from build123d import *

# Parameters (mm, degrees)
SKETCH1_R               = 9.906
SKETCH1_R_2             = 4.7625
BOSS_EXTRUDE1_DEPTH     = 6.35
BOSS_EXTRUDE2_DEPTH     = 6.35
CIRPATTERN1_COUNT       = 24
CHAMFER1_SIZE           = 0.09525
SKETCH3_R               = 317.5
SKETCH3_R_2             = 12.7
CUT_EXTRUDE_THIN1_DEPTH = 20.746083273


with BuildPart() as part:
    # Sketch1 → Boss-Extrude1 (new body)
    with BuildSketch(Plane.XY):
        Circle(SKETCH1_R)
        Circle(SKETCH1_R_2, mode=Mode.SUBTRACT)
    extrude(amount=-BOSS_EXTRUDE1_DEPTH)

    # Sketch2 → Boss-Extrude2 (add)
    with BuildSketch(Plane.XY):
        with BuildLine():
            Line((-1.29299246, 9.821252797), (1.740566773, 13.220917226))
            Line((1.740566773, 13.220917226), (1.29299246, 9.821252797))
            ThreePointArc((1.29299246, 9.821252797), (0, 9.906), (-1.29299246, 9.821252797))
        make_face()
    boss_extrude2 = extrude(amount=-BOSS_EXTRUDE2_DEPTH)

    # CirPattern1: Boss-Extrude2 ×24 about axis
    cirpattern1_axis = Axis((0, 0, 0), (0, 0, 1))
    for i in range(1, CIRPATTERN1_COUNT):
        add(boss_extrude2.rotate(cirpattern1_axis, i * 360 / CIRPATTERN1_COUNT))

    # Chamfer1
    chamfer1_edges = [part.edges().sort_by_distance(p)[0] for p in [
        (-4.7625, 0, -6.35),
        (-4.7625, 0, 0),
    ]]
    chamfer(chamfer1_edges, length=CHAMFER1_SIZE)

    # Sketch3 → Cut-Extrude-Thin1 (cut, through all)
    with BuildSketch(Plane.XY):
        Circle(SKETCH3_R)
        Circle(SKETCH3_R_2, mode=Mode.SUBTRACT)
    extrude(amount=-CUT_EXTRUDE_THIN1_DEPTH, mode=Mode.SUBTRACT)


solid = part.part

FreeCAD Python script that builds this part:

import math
import FreeCAD as App
import Part
import Sketcher
from FreeCAD import Vector
Q = App.Units.Quantity


def edges_at(feature, points):
    """Names of the edges that pass closest to the given points."""
    edges = feature.Shape.Edges
    near = lambda p: min(range(len(edges)), key=lambda i: edges[i].distToShape(Part.Vertex(*p))[0])
    return sorted({f"Edge{near(p) + 1}" for p in points})

doc = App.newDocument("Part")
body = doc.addObject("PartDesign::Body", "Body")

sketch1 = doc.addObject("Sketcher::SketchObject", "Sketch")
body.addObject(sketch1)
sketch1.AttachmentSupport = (doc.XY_Plane, [""])
sketch1.MapMode = "FlatFace"
sketch1.addGeometry([
    Part.Circle(Vector(0, 0, 0), Vector(0, 0, 1), 9.9),
    Part.Circle(Vector(0, 0, 0), Vector(0, 0, 1), 4.8),
], False)
sketch1.addConstraint([
    Sketcher.Constraint("Coincident", 0, 3, -1, 1),
    Sketcher.Constraint("Coincident", 1, 3, -1, 1),
    Sketcher.Constraint("Diameter", 0, Q("0.78 in")),
    Sketcher.Constraint("Diameter", 1, Q("0.375 in")),
])
pad1 = doc.addObject("PartDesign::Pad", "Pad")
body.addObject(pad1)
pad1.Profile = sketch1
pad1.Length = Q("0.25 in")
pad1.Reversed = True

sketch2 = doc.addObject("Sketcher::SketchObject", "Sketch001")
body.addObject(sketch2)
sketch2.AttachmentSupport = (doc.XY_Plane, [""])
sketch2.MapMode = "FlatFace"
sketch2.addGeometry([
    Part.LineSegment(Vector(1.7, 13.2, 0), Vector(-1.3, 9.8, 0)),
    Part.ArcOfCircle(Part.Circle(Vector(0, 0, 0), Vector(0, 0, 1), 9.9), math.radians(82.5), math.radians(97.5)),
    Part.LineSegment(Vector(1.3, 9.8, 0), Vector(1.7, 13.2, 0)),
], False)
sketch2.addConstraint([
    Sketcher.Constraint("Coincident", 0, 2, 1, 2),
    Sketcher.Constraint("Coincident", 1, 1, 2, 1),
    Sketcher.Constraint("Coincident", 2, 2, 0, 1),
    Sketcher.Constraint("Coincident", 1, 3, -1, 1),
    Sketcher.Constraint("Horizontal", 0, 2, 1, 1),
    Sketcher.Constraint("Radius", 1, Q("0.39 in")),
    Sketcher.Constraint("Angle", 2, Q("82.5 deg")),
    Sketcher.Constraint("Distance", 2, Q("0.135 in")),
    Sketcher.Constraint("DistanceX", 0, 2, 2, 2, 3.033559),
])
pad2 = doc.addObject("PartDesign::Pad", "Pad001")
body.addObject(pad2)
pad2.Profile = sketch2
pad2.Length = Q("0.25 in")
pad2.Reversed = True
doc.recompute()

polarpattern = doc.addObject("PartDesign::PolarPattern", "PolarPattern")
body.addObject(polarpattern)
polarpattern.Originals = [pad2]
polarpattern.Axis = (doc.Z_Axis, [""])
polarpattern.Angle = 360
polarpattern.Occurrences = 24
body.Tip = polarpattern
doc.recompute()

chamfer = doc.addObject("PartDesign::Chamfer", "Chamfer")
body.addObject(chamfer)
chamfer.Base = (polarpattern, edges_at(polarpattern, [(-4.763, 0, -6.35), (-4.763, 0, 0)]))
chamfer.Size = 0.09525

sketch3 = doc.addObject("Sketcher::SketchObject", "Sketch002")
body.addObject(sketch3)
sketch3.AttachmentSupport = (doc.XY_Plane, [""])
sketch3.MapMode = "FlatFace"
sketch3.addGeometry([
    Part.Circle(Vector(0, 0, 0), Vector(0, 0, 1), 318),
    Part.Circle(Vector(0, 0, 0), Vector(0, 0, 1), 13),
], False)
sketch3.addConstraint([
    Sketcher.Constraint("Coincident", 0, 3, -1, 1),
    Sketcher.Constraint("Coincident", 1, 3, -1, 1),
    Sketcher.Constraint("Diameter", 0, Q("25 in")),
    Sketcher.Constraint("Diameter", 1, Q("1 in")),
])
pocket1 = doc.addObject("PartDesign::Pocket", "Pocket")
body.addObject(pocket1)
pocket1.Profile = sketch3
pocket1.Type = "ThroughAll"

doc.recompute()
